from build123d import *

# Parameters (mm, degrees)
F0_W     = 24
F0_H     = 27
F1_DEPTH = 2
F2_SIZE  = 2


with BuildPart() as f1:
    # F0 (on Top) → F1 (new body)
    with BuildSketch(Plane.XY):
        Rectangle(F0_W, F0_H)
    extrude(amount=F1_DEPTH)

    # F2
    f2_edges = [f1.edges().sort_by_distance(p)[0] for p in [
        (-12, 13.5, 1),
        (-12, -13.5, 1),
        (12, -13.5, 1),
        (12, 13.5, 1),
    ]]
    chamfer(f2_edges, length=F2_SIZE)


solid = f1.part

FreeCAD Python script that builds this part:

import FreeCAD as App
import Part
import Sketcher
Q = App.Units.Quantity


def edges_at(feature, points):
    """Names of the edges that pass closest to the given points."""
    edges = feature.Shape.Edges
    near = lambda p: min(range(len(edges)), key=lambda i: edges[i].distToShape(Part.Vertex(*p))[0])
    return sorted({f"Edge{near(p) + 1}" for p in points})

doc = App.newDocument("Part")
body = doc.addObject("PartDesign::Body", "Body")

sketch1 = body.newObject("Sketcher::SketchObject", "Sketch")
sketch1.AttachmentSupport = (doc.getObject("XY_Plane"), [""])
sketch1.MapMode = "FlatFace"
sketch1.addGeometry([
    Part.LineSegment(App.Vector(-12, 14, 0), App.Vector(-12, -14, 0)),
    Part.LineSegment(App.Vector(-12, -14, 0), App.Vector(12, -14, 0)),
    Part.LineSegment(App.Vector(12, -14, 0), App.Vector(12, 14, 0)),
    Part.LineSegment(App.Vector(12, 14, 0), App.Vector(-12, 14, 0)),
], False)
sketch1.addConstraint([
    Sketcher.Constraint("Coincident", 0, 2, 1, 1),
    Sketcher.Constraint("Coincident", 1, 2, 2, 1),
    Sketcher.Constraint("Coincident", 2, 2, 3, 1),
    Sketcher.Constraint("Coincident", 3, 2, 0, 1),
    Sketcher.Constraint("Vertical", 0),
    Sketcher.Constraint("Horizontal", 1),
    Sketcher.Constraint("Vertical", 2),
    Sketcher.Constraint("Horizontal", 3),
    Sketcher.Constraint("Symmetric", 0, 2, 2, 2, -1, 1),
    Sketcher.Constraint("DistanceX", 1, 1, 1, 2, Q("24 mm")),
    Sketcher.Constraint("DistanceY", 0, 2, 0, 1, Q("27 mm")),
])
pad1 = body.newObject("PartDesign::Pad", "Pad")
pad1.Profile = sketch1
pad1.Length = 2
doc.recompute()

chamfer = body.newObject("PartDesign::Chamfer", "Chamfer")
chamfer.Base = (pad1, edges_at(pad1, [
    (-12, 13.5, 1),
    (-12, -13.5, 1),
    (12, -13.5, 1),
    (12, 13.5, 1),
]))
chamfer.Size = 2

doc.recompute()
